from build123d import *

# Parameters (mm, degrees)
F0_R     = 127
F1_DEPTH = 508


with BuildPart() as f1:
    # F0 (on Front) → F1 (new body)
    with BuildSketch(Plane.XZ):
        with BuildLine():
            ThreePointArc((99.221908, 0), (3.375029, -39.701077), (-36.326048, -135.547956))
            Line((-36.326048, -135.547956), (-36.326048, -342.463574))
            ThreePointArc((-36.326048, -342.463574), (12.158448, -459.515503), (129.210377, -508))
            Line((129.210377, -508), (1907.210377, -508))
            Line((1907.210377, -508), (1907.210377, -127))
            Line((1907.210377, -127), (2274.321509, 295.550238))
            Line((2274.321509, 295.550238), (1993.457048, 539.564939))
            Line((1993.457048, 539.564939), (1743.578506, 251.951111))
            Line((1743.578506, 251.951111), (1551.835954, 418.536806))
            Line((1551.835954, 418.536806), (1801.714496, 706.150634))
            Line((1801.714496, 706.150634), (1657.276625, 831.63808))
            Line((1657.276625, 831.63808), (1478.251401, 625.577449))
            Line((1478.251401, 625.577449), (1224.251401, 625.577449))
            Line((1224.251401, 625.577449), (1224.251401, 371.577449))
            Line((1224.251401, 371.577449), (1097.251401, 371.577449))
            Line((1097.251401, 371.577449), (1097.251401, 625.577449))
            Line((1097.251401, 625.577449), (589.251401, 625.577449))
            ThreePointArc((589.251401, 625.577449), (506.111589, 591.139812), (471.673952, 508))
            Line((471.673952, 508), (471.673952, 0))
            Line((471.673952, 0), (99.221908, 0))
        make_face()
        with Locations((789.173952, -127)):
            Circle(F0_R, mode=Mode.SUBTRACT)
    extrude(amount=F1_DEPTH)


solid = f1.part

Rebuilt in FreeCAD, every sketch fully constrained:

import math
import FreeCAD as App
import Part
import Sketcher
Q = App.Units.Quantity

doc = App.newDocument("Part")
body = doc.addObject("PartDesign::Body", "Body")

# Sketch on XZ plane
sketch1 = doc.addObject("Sketcher::SketchObject", "Sketch")
body.addObject(sketch1)
sketch1.AttachmentSupport = (doc.XZ_Plane, [""])
sketch1.MapMode = "FlatFace"
sketch1.addGeometry([
    Part.ArcOfCircle(Part.Circle(App.Vector(99, -136, 0), App.Vector(0, 0, 1), 136), math.radians(90), math.radians(180)),  # 0
    Part.LineSegment(App.Vector(-36, -136, 0), App.Vector(-36, -342, 0)),  # 1
    Part.ArcOfCircle(Part.Circle(App.Vector(129, -342, 0), App.Vector(0, 0, 1), 166), math.radians(180), math.radians(270)),  # 2
    Part.LineSegment(App.Vector(129, -508, 0), App.Vector(1907, -508, 0)),  # 3
    Part.LineSegment(App.Vector(1907, -508, 0), App.Vector(1907, -127, 0)),  # 4
    Part.LineSegment(App.Vector(1907, -127, 0), App.Vector(2274, 296, 0)),  # 5
    Part.LineSegment(App.Vector(2274, 296, 0), App.Vector(1993, 540, 0)),  # 6
    Part.LineSegment(App.Vector(1993, 540, 0), App.Vector(1744, 252, 0)),  # 7
    Part.LineSegment(App.Vector(1744, 252, 0), App.Vector(1552, 419, 0)),  # 8
    Part.LineSegment(App.Vector(1552, 419, 0), App.Vector(1802, 706, 0)),  # 9
    Part.LineSegment(App.Vector(1802, 706, 0), App.Vector(1657, 832, 0)),  # 10
    Part.LineSegment(App.Vector(1657, 832, 0), App.Vector(1478, 626, 0)),  # 11
    Part.LineSegment(App.Vector(1478, 626, 0), App.Vector(1224, 626, 0)),  # 12
    Part.LineSegment(App.Vector(1224, 626, 0), App.Vector(1224, 372, 0)),  # 13
    Part.LineSegment(App.Vector(1224, 372, 0), App.Vector(1097, 372, 0)),  # 14
    Part.LineSegment(App.Vector(1097, 372, 0), App.Vector(1097, 626, 0)),  # 15
    Part.LineSegment(App.Vector(1097, 626, 0), App.Vector(589, 626, 0)),  # 16
    Part.ArcOfCircle(Part.Circle(App.Vector(589, 508, 0), App.Vector(0, 0, 1), 118), math.radians(90), math.radians(180)),  # 17
    Part.LineSegment(App.Vector(472, 508, 0), App.Vector(472, 0, 0)),  # 18
    Part.LineSegment(App.Vector(472, 0, 0), App.Vector(99, 0, 0)),  # 19
    Part.Circle(App.Vector(789, -127, 0), App.Vector(0, 0, 1), 127),  # 20
], False)
sketch1.addConstraint([
    Sketcher.Constraint("Tangent", 0, 2, 1, 1),
    Sketcher.Constraint("Tangent", 1, 2, 2, 1),
    Sketcher.Constraint("Tangent", 2, 2, 3, 1),
    Sketcher.Constraint("Coincident", 3, 2, 4, 1),
    Sketcher.Constraint("Coincident", 4, 2, 5, 1),
    Sketcher.Constraint("Coincident", 5, 2, 6, 1),
    Sketcher.Constraint("Coincident", 6, 2, 7, 1),
    Sketcher.Constraint("Coincident", 7, 2, 8, 1),
    Sketcher.Constraint("Coincident", 8, 2, 9, 1),
    Sketcher.Constraint("Coincident", 9, 2, 10, 1),
    Sketcher.Constraint("Coincident", 10, 2, 11, 1),
    Sketcher.Constraint("Coincident", 11, 2, 12, 1),
    Sketcher.Constraint("Coincident", 12, 2, 13, 1),
    Sketcher.Constraint("Coincident", 13, 2, 14, 1),
    Sketcher.Constraint("Coincident", 14, 2, 15, 1),
    Sketcher.Constraint("Coincident", 15, 2, 16, 1),
    Sketcher.Constraint("Tangent", 16, 2, 17, 1),
    Sketcher.Constraint("Tangent", 17, 2, 18, 1),
    Sketcher.Constraint("Coincident", 18, 2, 19, 1),
    Sketcher.Constraint("Tangent", 19, 2, 0, 1),
    Sketcher.Constraint("Vertical", 1),
    Sketcher.Constraint("Horizontal", 3),
    Sketcher.Constraint("Vertical", 4),
    Sketcher.Constraint("Horizontal", 12),
    Sketcher.Constraint("Vertical", 13),
    Sketcher.Constraint("Horizontal", 14),
    Sketcher.Constraint("Vertical", 15),
    Sketcher.Constraint("Horizontal", 16),
    Sketcher.Constraint("Vertical", 18),
    Sketcher.Constraint("Horizontal", 19),
    Sketcher.Constraint("PointOnObject", 18, 2, -1),
    Sketcher.Constraint("Perpendicular", 5, 6),
    Sketcher.Constraint("Perpendicular", 6, 7),
    Sketcher.Constraint("Perpendicular", 7, 8),
    Sketcher.Constraint("Perpendicular", 8, 9),
    Sketcher.Constraint("Perpendicular", 9, 10),
    Sketcher.Constraint("Perpendicular", 10, 11),
    Sketcher.Constraint("Horizontal", 20, 3, 4, 2),
    Sketcher.Constraint("Horizontal", 12, 2, 15, 2),
    Sketcher.Constraint("Equal", 12, 13),
    Sketcher.Constraint("Equal", 16, 18),
    Sketcher.Constraint("Equal", 7, 9),
    Sketcher.Constraint("Diameter", 20, Q("10 in")),
    Sketcher.Constraint("DistanceX", 3, 1, 3, 2, Q("70 in")),
    Sketcher.Constraint("DistanceX", 12, 2, 12, 1, Q("10 in")),
    Sketcher.Constraint("DistanceX", 14, 2, 14, 1, Q("5 in")),
    Sketcher.Constraint("DistanceX", 16, 2, 16, 1, Q("20 in")),
    Sketcher.Constraint("DistanceY", 4, 1, 4, 2, Q("15 in")),
    Sketcher.Constraint("Distance", 7, Q("15 in")),
    Sketcher.Constraint("Distance", 8, Q("10 in")),
    Sketcher.Constraint("DistanceY", 20, 3, -1, 1, Q("5 in")),
    Sketcher.Constraint("DistanceX", 0, 2, 20, 3, Q("32.5 in")),
    Sketcher.Constraint("DistanceX", 17, 2, 20, 3, Q("12.5 in")),
    Sketcher.Constraint("Radius", 0, Q("135.547956 mm")),
    Sketcher.Constraint("Radius", 2, Q("165.536426 mm")),
    Sketcher.Constraint("Radius", 17, Q("117.577447 mm")),
    Sketcher.Constraint("DistanceX", -1, 1, 17, 3, Q("589.251399 mm")),
    Sketcher.Constraint("DistanceX", 0, 3, 5, 2, Q("2175.099601 mm")),
    Sketcher.Constraint("DistanceY", 5, 2, 6, 2, Q("244.014701 mm")),
    Sketcher.Constraint("DistanceX", 20, 3, 8, 2, Q("762.662002 mm")),
])
pad1 = doc.addObject("PartDesign::Pad", "Pad")
body.addObject(pad1)
pad1.Profile = sketch1
pad1.Length = Q("20 in")

doc.recompute()
